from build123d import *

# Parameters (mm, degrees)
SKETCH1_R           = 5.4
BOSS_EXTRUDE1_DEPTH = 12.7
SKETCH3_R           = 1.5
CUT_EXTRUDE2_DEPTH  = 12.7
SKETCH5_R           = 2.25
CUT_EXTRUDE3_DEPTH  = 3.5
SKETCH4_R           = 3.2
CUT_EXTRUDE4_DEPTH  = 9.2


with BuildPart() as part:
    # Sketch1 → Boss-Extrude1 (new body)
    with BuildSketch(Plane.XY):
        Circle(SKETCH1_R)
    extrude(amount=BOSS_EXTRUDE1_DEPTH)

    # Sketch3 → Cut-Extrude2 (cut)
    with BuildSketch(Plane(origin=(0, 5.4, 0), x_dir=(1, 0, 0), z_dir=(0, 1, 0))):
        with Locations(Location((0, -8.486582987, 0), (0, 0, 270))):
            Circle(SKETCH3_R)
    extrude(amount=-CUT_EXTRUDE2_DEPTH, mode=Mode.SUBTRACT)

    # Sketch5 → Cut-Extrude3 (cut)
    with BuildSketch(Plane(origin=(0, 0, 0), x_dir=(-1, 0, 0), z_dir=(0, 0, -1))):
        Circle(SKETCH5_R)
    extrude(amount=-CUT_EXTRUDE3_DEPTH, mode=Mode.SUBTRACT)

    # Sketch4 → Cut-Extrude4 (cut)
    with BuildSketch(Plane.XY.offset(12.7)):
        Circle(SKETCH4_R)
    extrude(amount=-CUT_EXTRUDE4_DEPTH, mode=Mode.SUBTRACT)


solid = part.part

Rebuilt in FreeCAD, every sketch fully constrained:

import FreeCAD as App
import Part
import Sketcher

V = App.Vector
Q = App.Units.Quantity

doc = App.newDocument("Part")
body = doc.addObject("PartDesign::Body", "Body")

# Sketch on XY plane
sketch1 = doc.addObject("Sketcher::SketchObject", "Sketch")
body.addObject(sketch1)
sketch1.AttachmentSupport = (doc.XY_Plane, [""])
sketch1.MapMode = "FlatFace"
sketch1.addGeometry(Part.Circle(V(0, 0, 0), V(0, 0, 1), 5), False)
sketch1.addConstraint(Sketcher.Constraint("Coincident", 0, 3, -1, 1))
sketch1.addConstraint(Sketcher.Constraint("Diameter", 0, Q("10.8 mm")))
pad1 = doc.addObject("PartDesign::Pad", "Pad")
body.addObject(pad1)
pad1.Profile = sketch1
pad1.Length = 12.7

# Sketch on XZ plane
sketch2 = doc.addObject("Sketcher::SketchObject", "Sketch001")
body.addObject(sketch2)
sketch2.AttachmentSupport = (doc.XZ_Plane, [""])
sketch2.MapMode = "FlatFace"
sketch2.AttachmentOffset = App.Placement(V(0, 0, -5.4), App.Rotation())
sketch2.addGeometry(Part.Circle(V(0, 8.5, 0), V(0, 0, 1), 1.5), False)
sketch2.addConstraint(Sketcher.Constraint("PointOnObject", 0, 3, -2))
sketch2.addConstraint(Sketcher.Constraint("Diameter", 0, Q("3 mm")))
sketch2.addConstraint(Sketcher.Constraint("DistanceY", -1, 1, 0, 3, Q("8.486583 mm")))
pocket1 = doc.addObject("PartDesign::Pocket", "Pocket")
body.addObject(pocket1)
pocket1.Profile = sketch2
pocket1.Length = 12.7
pocket1.Reversed = True

# Sketch on XY plane
sketch3 = doc.addObject("Sketcher::SketchObject", "Sketch002")
body.addObject(sketch3)
sketch3.AttachmentSupport = (doc.XY_Plane, [""])
sketch3.MapMode = "FlatFace"
sketch3.addGeometry(Part.Circle(V(0, 0, 0), V(0, 0, 1), 2.2), False)
sketch3.addConstraint(Sketcher.Constraint("Coincident", 0, 3, -1, 1))
sketch3.addConstraint(Sketcher.Constraint("Diameter", 0, Q("4.5 mm")))
pocket2 = doc.addObject("PartDesign::Pocket", "Pocket001")
body.addObject(pocket2)
pocket2.Profile = sketch3
pocket2.Length = 3.5
pocket2.Reversed = True

# Sketch on XY plane
sketch4 = doc.addObject("Sketcher::SketchObject", "Sketch003")
body.addObject(sketch4)
sketch4.AttachmentSupport = (doc.XY_Plane, [""])
sketch4.MapMode = "FlatFace"
sketch4.AttachmentOffset = App.Placement(V(0, 0, 12.7), App.Rotation())
sketch4.addGeometry(Part.Circle(V(0, 0, 0), V(0, 0, 1), 3.2), False)
sketch4.addConstraint(Sketcher.Constraint("Coincident", 0, 3, -1, 1))
sketch4.addConstraint(Sketcher.Constraint("Diameter", 0, Q("6.4 mm")))
pocket3 = doc.addObject("PartDesign::Pocket", "Pocket002")
body.addObject(pocket3)
pocket3.Profile = sketch4
pocket3.Length = 9.2

doc.recompute()
